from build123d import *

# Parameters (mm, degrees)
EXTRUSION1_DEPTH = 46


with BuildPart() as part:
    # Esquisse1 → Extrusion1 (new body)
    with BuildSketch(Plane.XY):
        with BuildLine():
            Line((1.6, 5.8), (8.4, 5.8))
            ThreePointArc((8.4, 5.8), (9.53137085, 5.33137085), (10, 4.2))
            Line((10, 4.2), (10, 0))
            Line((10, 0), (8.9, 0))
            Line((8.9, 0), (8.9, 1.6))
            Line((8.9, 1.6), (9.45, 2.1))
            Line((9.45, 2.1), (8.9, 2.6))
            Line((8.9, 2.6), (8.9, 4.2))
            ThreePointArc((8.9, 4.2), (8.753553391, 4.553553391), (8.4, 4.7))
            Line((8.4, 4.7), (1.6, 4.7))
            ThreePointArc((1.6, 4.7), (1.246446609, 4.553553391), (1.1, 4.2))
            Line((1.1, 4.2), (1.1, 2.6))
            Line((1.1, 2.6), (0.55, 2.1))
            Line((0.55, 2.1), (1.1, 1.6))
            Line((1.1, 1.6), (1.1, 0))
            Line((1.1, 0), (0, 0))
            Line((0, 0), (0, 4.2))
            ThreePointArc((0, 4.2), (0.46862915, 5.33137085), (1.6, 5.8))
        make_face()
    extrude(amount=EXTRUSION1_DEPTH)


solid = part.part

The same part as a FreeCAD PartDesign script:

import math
import FreeCAD as App
import Part
import Sketcher
from FreeCAD import Vector

doc = App.newDocument("Part")
body = doc.addObject("PartDesign::Body", "Body")

sketch1 = doc.addObject("Sketcher::SketchObject", "Sketch")
body.addObject(sketch1)
sketch1.AttachmentSupport = (doc.XY_Plane, [""])
sketch1.MapMode = "FlatFace"
sketch1.addGeometry([
    Part.LineSegment(Vector(8.4, 5.8, 0), Vector(1.6, 5.8, 0)),
    Part.ArcOfCircle(Part.Circle(Vector(1.6, 4.2, 0), Vector(0, 0, 1), 1.6), math.radians(90), math.radians(180)),
    Part.LineSegment(Vector(0, 4.2, 0), Vector(0, 0, 0)),
    Part.LineSegment(Vector(0, 0, 0), Vector(1.1, 0, 0)),
    Part.LineSegment(Vector(1.1, 0, 0), Vector(1.1, 1.6, 0)),
    Part.LineSegment(Vector(1.1, 1.6, 0), Vector(0.55, 2.1, 0)),
    Part.LineSegment(Vector(0.55, 2.1, 0), Vector(1.1, 2.6, 0)),
    Part.LineSegment(Vector(1.1, 2.6, 0), Vector(1.1, 4.2, 0)),
    Part.ArcOfCircle(Part.Circle(Vector(1.6, 4.2, 0), Vector(0, 0, 1), 0.5), math.radians(90), math.radians(180)),
    Part.LineSegment(Vector(1.6, 4.7, 0), Vector(8.4, 4.7, 0)),
    Part.ArcOfCircle(Part.Circle(Vector(8.4, 4.2, 0), Vector(0, 0, 1), 0.5), math.radians(0), math.radians(90)),
    Part.LineSegment(Vector(8.9, 4.2, 0), Vector(8.9, 2.6, 0)),
    Part.LineSegment(Vector(8.9, 2.6, 0), Vector(9.45, 2.1, 0)),
    Part.LineSegment(Vector(9.45, 2.1, 0), Vector(8.9, 1.6, 0)),
    Part.LineSegment(Vector(8.9, 1.6, 0), Vector(8.9, 0, 0)),
    Part.LineSegment(Vector(8.9, 0, 0), Vector(10, 0, 0)),
    Part.LineSegment(Vector(10, 0, 0), Vector(10, 4.2, 0)),
    Part.ArcOfCircle(Part.Circle(Vector(8.4, 4.2, 0), Vector(0, 0, 1), 1.6), math.radians(0), math.radians(90)),
], False)
sketch1.addConstraint([
    Sketcher.Constraint("Tangent", 0, 2, 1, 1),
    Sketcher.Constraint("Tangent", 1, 2, 2, 1),
    Sketcher.Constraint("Coincident", 2, 2, 3, 1),
    Sketcher.Constraint("Coincident", 3, 2, 4, 1),
    Sketcher.Constraint("Coincident", 4, 2, 5, 1),
    Sketcher.Constraint("Coincident", 5, 2, 6, 1),
    Sketcher.Constraint("Coincident", 6, 2, 7, 1),
    Sketcher.Constraint("Tangent", 7, 2, 8, 2),
    Sketcher.Constraint("Tangent", 8, 1, 9, 1),
    Sketcher.Constraint("Tangent", 9, 2, 10, 2),
    Sketcher.Constraint("Tangent", 10, 1, 11, 1),
    Sketcher.Constraint("Coincident", 11, 2, 12, 1),
    Sketcher.Constraint("Coincident", 12, 2, 13, 1),
    Sketcher.Constraint("Coincident", 13, 2, 14, 1),
    Sketcher.Constraint("Coincident", 14, 2, 15, 1),
    Sketcher.Constraint("Coincident", 15, 2, 16, 1),
    Sketcher.Constraint("Tangent", 16, 2, 17, 1),
    Sketcher.Constraint("Tangent", 17, 2, 0, 1),
    Sketcher.Constraint("Horizontal", 0),
    Sketcher.Constraint("Vertical", 2),
    Sketcher.Constraint("Horizontal", 3),
    Sketcher.Constraint("Vertical", 4),
    Sketcher.Constraint("Vertical", 7),
    Sketcher.Constraint("Horizontal", 9),
    Sketcher.Constraint("Vertical", 11),
    Sketcher.Constraint("Vertical", 14),
    Sketcher.Constraint("Horizontal", 15),
    Sketcher.Constraint("Vertical", 16),
    Sketcher.Constraint("Coincident", 2, 2, -1, 1),
    Sketcher.Constraint("Coincident", 8, 3, 1, 3),
    Sketcher.Constraint("Coincident", 17, 3, 10, 3),
    Sketcher.Constraint("Equal", 8, 10),
    Sketcher.Constraint("PointOnObject", 14, 2, -1),
    Sketcher.Constraint("Parallel", 5, 12),
    Sketcher.Constraint("Parallel", 6, 13),
    Sketcher.Constraint("Horizontal", 6, 2, 11, 2),
    Sketcher.Constraint("Horizontal", 5, 2, 12, 2),
    Sketcher.Constraint("Horizontal", 4, 2, 13, 2),
    Sketcher.Constraint("Vertical", 4, 2, 6, 2),
    Sketcher.Constraint("Vertical", 11, 2, 13, 2),
    Sketcher.Constraint("Equal", 4, 7),
    Sketcher.Constraint("Radius", 1, 1.6),
    Sketcher.Constraint("Radius", 8, 0.5),
    Sketcher.Constraint("DistanceX", 0, 2, 0, 1, 6.8),
    Sketcher.Constraint("DistanceY", 2, 2, 2, 1, 4.2),
    Sketcher.Constraint("DistanceY", 4, 1, 4, 2, 1.6),
    Sketcher.Constraint("DistanceX", -1, 1, 5, 2, 0.55),
])
pad1 = doc.addObject("PartDesign::Pad", "Pad")
body.addObject(pad1)
pad1.Profile = sketch1
pad1.Length = 46

doc.recompute()
